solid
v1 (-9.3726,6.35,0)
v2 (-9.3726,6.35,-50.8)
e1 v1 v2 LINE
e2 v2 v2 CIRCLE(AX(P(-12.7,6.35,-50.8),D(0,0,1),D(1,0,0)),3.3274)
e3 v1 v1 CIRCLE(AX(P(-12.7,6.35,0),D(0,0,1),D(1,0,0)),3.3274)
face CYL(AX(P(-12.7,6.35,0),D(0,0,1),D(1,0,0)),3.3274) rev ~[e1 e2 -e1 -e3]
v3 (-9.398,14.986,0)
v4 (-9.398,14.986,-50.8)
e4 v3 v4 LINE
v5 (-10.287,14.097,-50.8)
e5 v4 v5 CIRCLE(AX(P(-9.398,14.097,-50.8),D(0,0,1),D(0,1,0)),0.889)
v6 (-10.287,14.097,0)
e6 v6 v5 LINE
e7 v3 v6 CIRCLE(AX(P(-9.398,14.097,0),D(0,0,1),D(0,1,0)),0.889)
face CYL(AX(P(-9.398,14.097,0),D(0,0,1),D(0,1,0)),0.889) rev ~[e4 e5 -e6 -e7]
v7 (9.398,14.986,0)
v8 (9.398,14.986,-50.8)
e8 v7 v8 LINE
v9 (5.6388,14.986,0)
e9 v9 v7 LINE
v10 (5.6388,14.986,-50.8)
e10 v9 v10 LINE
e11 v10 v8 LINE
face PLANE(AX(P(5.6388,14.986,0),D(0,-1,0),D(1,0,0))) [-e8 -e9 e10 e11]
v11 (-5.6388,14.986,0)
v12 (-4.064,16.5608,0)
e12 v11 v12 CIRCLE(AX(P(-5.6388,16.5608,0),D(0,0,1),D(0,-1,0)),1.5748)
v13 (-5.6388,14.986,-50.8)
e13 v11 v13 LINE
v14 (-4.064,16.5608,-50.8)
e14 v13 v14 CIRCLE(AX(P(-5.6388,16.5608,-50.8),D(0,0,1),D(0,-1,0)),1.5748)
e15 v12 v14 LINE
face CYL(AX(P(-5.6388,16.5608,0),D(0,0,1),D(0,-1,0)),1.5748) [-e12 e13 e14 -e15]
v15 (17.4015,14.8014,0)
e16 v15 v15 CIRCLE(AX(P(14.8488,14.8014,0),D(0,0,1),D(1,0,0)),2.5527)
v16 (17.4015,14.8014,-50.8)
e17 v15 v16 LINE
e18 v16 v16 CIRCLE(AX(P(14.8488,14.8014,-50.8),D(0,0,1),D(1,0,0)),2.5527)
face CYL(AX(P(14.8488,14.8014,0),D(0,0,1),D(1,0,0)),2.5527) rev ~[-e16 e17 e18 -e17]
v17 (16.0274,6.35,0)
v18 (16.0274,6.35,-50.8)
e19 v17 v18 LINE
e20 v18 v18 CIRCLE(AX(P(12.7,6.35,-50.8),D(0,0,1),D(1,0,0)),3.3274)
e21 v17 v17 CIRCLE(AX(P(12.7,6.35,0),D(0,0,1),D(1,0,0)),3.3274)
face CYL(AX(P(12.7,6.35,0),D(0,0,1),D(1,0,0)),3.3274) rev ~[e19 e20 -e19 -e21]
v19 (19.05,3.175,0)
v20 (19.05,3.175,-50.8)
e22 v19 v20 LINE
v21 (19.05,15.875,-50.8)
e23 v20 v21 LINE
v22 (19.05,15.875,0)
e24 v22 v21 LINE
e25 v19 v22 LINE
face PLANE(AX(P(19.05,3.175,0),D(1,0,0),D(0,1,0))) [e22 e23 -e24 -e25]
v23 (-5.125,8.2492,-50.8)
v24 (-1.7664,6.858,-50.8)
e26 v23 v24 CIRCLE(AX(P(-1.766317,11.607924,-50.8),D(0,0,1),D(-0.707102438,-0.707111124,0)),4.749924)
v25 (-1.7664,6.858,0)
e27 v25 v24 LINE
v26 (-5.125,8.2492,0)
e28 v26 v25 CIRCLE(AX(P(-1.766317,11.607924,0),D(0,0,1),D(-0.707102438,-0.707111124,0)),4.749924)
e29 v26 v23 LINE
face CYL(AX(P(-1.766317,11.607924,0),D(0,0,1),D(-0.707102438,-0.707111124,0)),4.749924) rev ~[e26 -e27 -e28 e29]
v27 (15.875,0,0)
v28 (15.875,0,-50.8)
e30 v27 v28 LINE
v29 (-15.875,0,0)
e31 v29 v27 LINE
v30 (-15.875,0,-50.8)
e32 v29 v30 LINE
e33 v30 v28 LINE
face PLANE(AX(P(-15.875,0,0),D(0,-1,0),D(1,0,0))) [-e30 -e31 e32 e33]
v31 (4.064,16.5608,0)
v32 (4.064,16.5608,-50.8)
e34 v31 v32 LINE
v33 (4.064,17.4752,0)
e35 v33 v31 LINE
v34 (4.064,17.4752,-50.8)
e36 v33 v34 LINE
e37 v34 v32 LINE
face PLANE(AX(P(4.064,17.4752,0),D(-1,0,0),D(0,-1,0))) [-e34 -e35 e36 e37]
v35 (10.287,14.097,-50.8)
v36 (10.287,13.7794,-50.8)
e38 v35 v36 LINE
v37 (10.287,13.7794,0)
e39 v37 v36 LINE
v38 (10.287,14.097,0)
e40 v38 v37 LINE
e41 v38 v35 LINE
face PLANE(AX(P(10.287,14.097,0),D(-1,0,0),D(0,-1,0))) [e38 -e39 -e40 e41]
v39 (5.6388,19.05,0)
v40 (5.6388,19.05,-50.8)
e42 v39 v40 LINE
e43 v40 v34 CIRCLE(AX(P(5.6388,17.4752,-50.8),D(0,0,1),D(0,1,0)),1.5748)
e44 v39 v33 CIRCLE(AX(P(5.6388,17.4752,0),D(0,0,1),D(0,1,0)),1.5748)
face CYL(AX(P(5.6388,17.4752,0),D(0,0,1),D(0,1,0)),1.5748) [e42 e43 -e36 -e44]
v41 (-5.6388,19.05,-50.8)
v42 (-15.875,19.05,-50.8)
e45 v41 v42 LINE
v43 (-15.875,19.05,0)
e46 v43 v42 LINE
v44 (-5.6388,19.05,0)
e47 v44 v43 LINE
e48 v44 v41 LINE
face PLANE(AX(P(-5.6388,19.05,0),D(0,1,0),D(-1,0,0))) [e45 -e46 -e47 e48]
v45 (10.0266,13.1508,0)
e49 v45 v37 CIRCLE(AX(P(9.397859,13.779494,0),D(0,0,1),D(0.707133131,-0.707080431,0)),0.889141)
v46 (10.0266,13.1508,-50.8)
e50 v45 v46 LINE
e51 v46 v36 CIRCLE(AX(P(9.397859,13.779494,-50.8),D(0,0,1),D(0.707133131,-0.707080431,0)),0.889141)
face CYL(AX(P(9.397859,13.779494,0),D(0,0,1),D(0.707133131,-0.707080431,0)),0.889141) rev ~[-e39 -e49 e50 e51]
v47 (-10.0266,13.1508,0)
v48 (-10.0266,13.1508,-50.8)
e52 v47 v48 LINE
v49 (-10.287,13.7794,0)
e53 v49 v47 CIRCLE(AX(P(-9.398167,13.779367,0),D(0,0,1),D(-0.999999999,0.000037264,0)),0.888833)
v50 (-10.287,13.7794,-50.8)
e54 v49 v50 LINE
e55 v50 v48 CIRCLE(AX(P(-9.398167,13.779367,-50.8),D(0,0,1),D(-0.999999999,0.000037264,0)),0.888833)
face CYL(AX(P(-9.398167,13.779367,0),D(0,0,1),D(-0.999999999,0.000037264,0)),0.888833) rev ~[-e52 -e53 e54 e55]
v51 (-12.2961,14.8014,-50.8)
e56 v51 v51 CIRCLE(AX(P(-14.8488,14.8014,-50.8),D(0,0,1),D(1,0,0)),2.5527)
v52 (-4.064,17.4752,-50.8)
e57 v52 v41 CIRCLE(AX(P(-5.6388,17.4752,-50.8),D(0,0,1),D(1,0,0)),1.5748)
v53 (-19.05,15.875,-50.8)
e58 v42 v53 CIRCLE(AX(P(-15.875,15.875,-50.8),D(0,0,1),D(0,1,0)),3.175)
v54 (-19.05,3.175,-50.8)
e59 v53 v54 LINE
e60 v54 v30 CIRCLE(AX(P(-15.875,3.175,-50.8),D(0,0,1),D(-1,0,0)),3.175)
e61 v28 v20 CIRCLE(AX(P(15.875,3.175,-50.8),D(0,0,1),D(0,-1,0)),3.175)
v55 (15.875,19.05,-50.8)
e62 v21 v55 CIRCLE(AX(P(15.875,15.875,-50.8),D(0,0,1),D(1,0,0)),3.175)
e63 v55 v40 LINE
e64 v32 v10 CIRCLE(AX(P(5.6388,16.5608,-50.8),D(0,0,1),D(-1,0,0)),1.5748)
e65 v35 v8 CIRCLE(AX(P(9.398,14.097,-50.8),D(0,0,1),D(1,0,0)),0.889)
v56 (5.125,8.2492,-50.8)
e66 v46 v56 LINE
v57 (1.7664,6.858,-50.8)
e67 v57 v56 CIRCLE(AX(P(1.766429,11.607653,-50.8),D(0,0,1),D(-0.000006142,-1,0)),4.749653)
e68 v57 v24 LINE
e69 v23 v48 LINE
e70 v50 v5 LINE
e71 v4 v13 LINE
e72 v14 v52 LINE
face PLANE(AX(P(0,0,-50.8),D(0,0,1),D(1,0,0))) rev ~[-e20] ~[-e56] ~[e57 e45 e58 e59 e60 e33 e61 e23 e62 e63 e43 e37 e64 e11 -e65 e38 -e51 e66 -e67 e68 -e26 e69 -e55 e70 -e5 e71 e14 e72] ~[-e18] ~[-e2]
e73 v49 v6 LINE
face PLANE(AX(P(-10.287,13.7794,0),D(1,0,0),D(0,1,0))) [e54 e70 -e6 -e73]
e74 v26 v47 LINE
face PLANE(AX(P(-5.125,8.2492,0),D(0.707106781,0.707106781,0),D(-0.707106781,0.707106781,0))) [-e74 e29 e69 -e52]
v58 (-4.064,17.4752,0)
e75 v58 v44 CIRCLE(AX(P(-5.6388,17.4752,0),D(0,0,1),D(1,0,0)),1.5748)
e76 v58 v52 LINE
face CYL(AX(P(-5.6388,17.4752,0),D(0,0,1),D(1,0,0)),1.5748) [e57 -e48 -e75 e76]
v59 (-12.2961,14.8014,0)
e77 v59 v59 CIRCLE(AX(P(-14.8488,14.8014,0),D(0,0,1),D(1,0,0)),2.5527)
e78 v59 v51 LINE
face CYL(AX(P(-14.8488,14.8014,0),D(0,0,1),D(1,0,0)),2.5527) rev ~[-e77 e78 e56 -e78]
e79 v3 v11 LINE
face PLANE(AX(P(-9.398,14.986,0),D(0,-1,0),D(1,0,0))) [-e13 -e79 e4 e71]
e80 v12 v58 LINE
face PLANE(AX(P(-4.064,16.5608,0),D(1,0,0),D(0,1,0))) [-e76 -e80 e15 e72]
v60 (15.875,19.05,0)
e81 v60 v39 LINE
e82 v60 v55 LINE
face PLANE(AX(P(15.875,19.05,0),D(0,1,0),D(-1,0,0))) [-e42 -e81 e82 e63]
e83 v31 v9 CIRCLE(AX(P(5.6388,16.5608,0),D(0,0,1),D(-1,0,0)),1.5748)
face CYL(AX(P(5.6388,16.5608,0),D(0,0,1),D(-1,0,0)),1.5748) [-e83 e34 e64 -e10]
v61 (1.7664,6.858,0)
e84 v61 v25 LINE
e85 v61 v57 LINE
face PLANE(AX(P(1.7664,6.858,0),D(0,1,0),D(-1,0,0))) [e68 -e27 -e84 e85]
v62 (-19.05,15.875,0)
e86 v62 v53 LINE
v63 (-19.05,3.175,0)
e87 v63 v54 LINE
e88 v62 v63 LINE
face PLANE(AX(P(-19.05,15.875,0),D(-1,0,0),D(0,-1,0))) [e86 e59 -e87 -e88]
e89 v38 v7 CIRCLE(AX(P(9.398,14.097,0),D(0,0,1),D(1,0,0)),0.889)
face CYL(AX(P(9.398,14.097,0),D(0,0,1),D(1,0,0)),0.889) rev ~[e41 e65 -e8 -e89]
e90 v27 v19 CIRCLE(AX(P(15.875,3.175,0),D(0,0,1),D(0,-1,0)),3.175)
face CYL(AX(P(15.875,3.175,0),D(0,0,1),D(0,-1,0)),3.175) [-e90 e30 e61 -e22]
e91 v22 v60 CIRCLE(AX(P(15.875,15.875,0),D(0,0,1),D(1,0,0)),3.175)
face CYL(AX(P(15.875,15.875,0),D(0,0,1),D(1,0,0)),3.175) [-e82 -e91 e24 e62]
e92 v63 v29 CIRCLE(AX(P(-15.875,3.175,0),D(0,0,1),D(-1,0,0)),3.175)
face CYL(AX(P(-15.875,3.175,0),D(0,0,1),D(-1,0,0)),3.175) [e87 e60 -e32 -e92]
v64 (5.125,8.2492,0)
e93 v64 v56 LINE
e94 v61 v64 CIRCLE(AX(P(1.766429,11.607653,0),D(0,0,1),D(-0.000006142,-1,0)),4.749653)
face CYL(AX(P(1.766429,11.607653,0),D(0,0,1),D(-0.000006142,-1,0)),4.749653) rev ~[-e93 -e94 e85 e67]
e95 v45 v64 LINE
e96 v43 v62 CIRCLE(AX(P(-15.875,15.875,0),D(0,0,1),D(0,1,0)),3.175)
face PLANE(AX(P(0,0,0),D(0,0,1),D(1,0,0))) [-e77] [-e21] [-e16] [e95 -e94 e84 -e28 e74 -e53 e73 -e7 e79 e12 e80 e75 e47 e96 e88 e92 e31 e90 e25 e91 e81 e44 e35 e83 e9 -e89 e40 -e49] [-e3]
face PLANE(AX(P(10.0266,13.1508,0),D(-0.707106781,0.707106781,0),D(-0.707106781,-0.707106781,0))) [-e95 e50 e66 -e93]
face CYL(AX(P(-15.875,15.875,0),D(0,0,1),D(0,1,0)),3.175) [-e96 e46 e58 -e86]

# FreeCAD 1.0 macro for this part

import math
import FreeCAD as App
import Part
import Sketcher

V = App.Vector
Q = App.Units.Quantity

doc = App.newDocument("Part")
params = doc.addObject("Spreadsheet::Sheet", "Params")
for row, (alias, value) in enumerate([
    ("sketch1_diameter", "0.262 in"),
    ("sketch1_diameter2", "0.201 in"),
    ("sketch1_height", "0.5 in"),
    ("sketch1_radius", "0.125 in"),
    ("sketch1_radius2", "0.062 in"),
    ("pad1_length", "2 in"),
], start=1):
    params.set(f"A{row}", alias)
    params.set(f"B{row}", "=" + value)
    params.setAlias(f"B{row}", alias)

body = doc.addObject("PartDesign::Body", "Body")

# Sketch on XY plane
sketch1 = body.newObject("Sketcher::SketchObject", "Sketch")
sketch1.AttachmentSupport = (doc.getObject("XY_Plane"), [""])
sketch1.MapMode = "FlatFace"
sketch1.addGeometry([
    Part.LineSegment(V(-19.05, 15.875, 0), V(-19.05, 3.175, 0)),  # 0
    Part.ArcOfCircle(Part.Circle(V(-15.875, 3.175, 0), V(0, 0, 1), 3.175), math.radians(180), math.radians(270)),  # 1
    Part.LineSegment(V(-15.875, 0, 0), V(15.875, 0, 0)),  # 2
    Part.ArcOfCircle(Part.Circle(V(15.875, 3.175, 0), V(0, 0, 1), 3.175), math.radians(-90), math.radians(0)),  # 3
    Part.LineSegment(V(19.05, 3.175, 0), V(19.05, 15.875, 0)),  # 4
    Part.ArcOfCircle(Part.Circle(V(15.875, 15.875, 0), V(0, 0, 1), 3.175), math.radians(0), math.radians(90)),  # 5
    Part.LineSegment(V(15.875, 19.05, 0), V(5.6388, 19.05, 0)),  # 6
    Part.ArcOfCircle(Part.Circle(V(5.6388, 17.4752, 0), V(0, 0, 1), 1.5748), math.radians(90), math.radians(180)),  # 7
    Part.LineSegment(V(4.064, 17.4752, 0), V(4.064, 16.5608, 0)),  # 8
    Part.ArcOfCircle(Part.Circle(V(5.6388, 16.5608, 0), V(0, 0, 1), 1.5748), math.radians(180), math.radians(270)),  # 9
    Part.LineSegment(V(5.6388, 14.986, 0), V(9.398, 14.986, 0)),  # 10
    Part.ArcOfCircle(Part.Circle(V(9.398, 14.097, 0), V(0, 0, 1), 0.889), math.radians(0), math.radians(90)),  # 11
    Part.LineSegment(V(10.287, 14.097, 0), V(10.287, 13.7794, 0)),  # 12
    Part.ArcOfCircle(Part.Circle(V(9.398, 13.7794, 0), V(0, 0, 1), 0.888975), math.radians(-45), math.radians(0)),  # 13
    Part.LineSegment(V(10.0266, 13.1508, 0), V(5.125, 8.2492, 0)),  # 14
    Part.ArcOfCircle(Part.Circle(V(1.7664, 11.6078, 0), V(0, 0, 1), 4.7498), math.radians(-90), math.radians(-45)),  # 15
    Part.LineSegment(V(1.7664, 6.858, 0), V(-1.7664, 6.858, 0)),  # 16
    Part.ArcOfCircle(Part.Circle(V(-1.7664, 11.6078, 0), V(0, 0, 1), 4.749778), math.radians(-135), math.radians(-90)),  # 17
    Part.LineSegment(V(-5.125, 8.2492, 0), V(-10.0266, 13.1508, 0)),  # 18
    Part.ArcOfCircle(Part.Circle(V(-9.398, 13.7794, 0), V(0, 0, 1), 0.889), math.radians(180), math.radians(225)),  # 19
    Part.LineSegment(V(-10.287, 13.7794, 0), V(-10.287, 14.097, 0)),  # 20
    Part.ArcOfCircle(Part.Circle(V(-9.398, 14.097, 0), V(0, 0, 1), 0.889), math.radians(90), math.radians(180)),  # 21
    Part.LineSegment(V(-9.398, 14.986, 0), V(-5.6388, 14.986, 0)),  # 22
    Part.ArcOfCircle(Part.Circle(V(-5.6388, 16.5608, 0), V(0, 0, 1), 1.5748), math.radians(-90), math.radians(0)),  # 23
    Part.LineSegment(V(-4.064, 16.5608, 0), V(-4.064, 17.4752, 0)),  # 24
    Part.ArcOfCircle(Part.Circle(V(-5.6388, 17.4752, 0), V(0, 0, 1), 1.5748), math.radians(0), math.radians(90)),  # 25
    Part.LineSegment(V(-5.6388, 19.05, 0), V(-15.875, 19.05, 0)),  # 26
    Part.ArcOfCircle(Part.Circle(V(-15.875, 15.875, 0), V(0, 0, 1), 3.175), math.radians(90), math.radians(180)),  # 27
    Part.Circle(V(-12.7, 6.35, 0), V(0, 0, 1), 3.3274),  # 28
    Part.Circle(V(12.7, 6.35, 0), V(0, 0, 1), 3.3274),  # 29
    Part.Circle(V(-14.8488, 14.8014, 0), V(0, 0, 1), 2.5527),  # 30
    Part.Circle(V(14.8488, 14.8014, 0), V(0, 0, 1), 2.5527),  # 31
], False)
sketch1.addConstraint([
    Sketcher.Constraint("Tangent", 0, 2, 1, 1),
    Sketcher.Constraint("Tangent", 1, 2, 2, 1),
    Sketcher.Constraint("Tangent", 2, 2, 3, 1),
    Sketcher.Constraint("Tangent", 3, 2, 4, 1),
    Sketcher.Constraint("Tangent", 4, 2, 5, 1),
    Sketcher.Constraint("Tangent", 5, 2, 6, 1),
    Sketcher.Constraint("Tangent", 6, 2, 7, 1),
    Sketcher.Constraint("Tangent", 7, 2, 8, 1),
    Sketcher.Constraint("Tangent", 8, 2, 9, 1),
    Sketcher.Constraint("Tangent", 9, 2, 10, 1),
    Sketcher.Constraint("Tangent", 10, 2, 11, 2),
    Sketcher.Constraint("Tangent", 11, 1, 12, 1),
    Sketcher.Constraint("Tangent", 12, 2, 13, 2),
    Sketcher.Constraint("Tangent", 13, 1, 14, 1),
    Sketcher.Constraint("Tangent", 14, 2, 15, 2),
    Sketcher.Constraint("Tangent", 15, 1, 16, 1),
    Sketcher.Constraint("Tangent", 16, 2, 17, 2),
    Sketcher.Constraint("Tangent", 17, 1, 18, 1),
    Sketcher.Constraint("Tangent", 18, 2, 19, 2),
    Sketcher.Constraint("Tangent", 19, 1, 20, 1),
    Sketcher.Constraint("Tangent", 20, 2, 21, 2),
    Sketcher.Constraint("Tangent", 21, 1, 22, 1),
    Sketcher.Constraint("Tangent", 22, 2, 23, 1),
    Sketcher.Constraint("Tangent", 23, 2, 24, 1),
    Sketcher.Constraint("Tangent", 24, 2, 25, 1),
    Sketcher.Constraint("Tangent", 25, 2, 26, 1),
    Sketcher.Constraint("Tangent", 26, 2, 27, 1),
    Sketcher.Constraint("Tangent", 27, 2, 0, 1),
    Sketcher.Constraint("Vertical", 0),
    Sketcher.Constraint("Horizontal", 2),
    Sketcher.Constraint("Vertical", 4),
    Sketcher.Constraint("Horizontal", 6),
    Sketcher.Constraint("Vertical", 8),
    Sketcher.Constraint("Horizontal", 10),
    Sketcher.Constraint("Vertical", 12),
    Sketcher.Constraint("Horizontal", 16),
    Sketcher.Constraint("Vertical", 20),
    Sketcher.Constraint("Horizontal", 22),
    Sketcher.Constraint("Vertical", 24),
    Sketcher.Constraint("Horizontal", 26),
    Sketcher.Constraint("Equal", 1, 3),
    Sketcher.Constraint("Equal", 3, 5),
    Sketcher.Constraint("Equal", 7, 9),
    Sketcher.Constraint("Equal", 11, 13),
    Sketcher.Constraint("Equal", 15, 17),
    Sketcher.Constraint("Equal", 13, 19),
    Sketcher.Constraint("Equal", 19, 21),
    Sketcher.Constraint("Equal", 9, 23),
    Sketcher.Constraint("Equal", 23, 25),
    Sketcher.Constraint("Equal", 5, 27),
    Sketcher.Constraint("Equal", 28, 29),
    Sketcher.Constraint("Equal", 30, 31),
    Sketcher.Constraint("Symmetric", 1, 2, 2, 2, -1, 1),
    Sketcher.Constraint("Symmetric", 13, 3, 19, 3, -2),
    Sketcher.Constraint("Symmetric", 9, 3, 23, 3, -2),
    Sketcher.Constraint("Symmetric", 28, 3, 29, 3, -2),
    Sketcher.Constraint("Symmetric", 30, 3, 31, 3, -2),
    Sketcher.Constraint("Perpendicular", 14, 18),
    Sketcher.Constraint("Horizontal", 7, 3, 25, 3),
    Sketcher.Constraint("Horizontal", 14, 2, 17, 1),
    Sketcher.Constraint("Diameter", 28, Q("0.262 in")),
    Sketcher.Constraint("Diameter", 30, Q("0.201 in")),
    Sketcher.Constraint("DistanceY", 0, 2, 0, 1, Q("0.5 in")),
    Sketcher.Constraint("Radius", 1, Q("0.125 in")),
    Sketcher.Constraint("Radius", 7, Q("0.062 in")),
    Sketcher.Constraint("Radius", 11, Q("0.035 in")),
    Sketcher.Constraint("Radius", 15, Q("0.187 in")),
    Sketcher.Constraint("DistanceX", 2, 1, 2, 2, Q("1.25 in")),
    Sketcher.Constraint("DistanceX", 28, 3, -1, 1, Q("0.5 in")),
    Sketcher.Constraint("DistanceX", 6, 2, 6, 1, Q("0.403 in")),
    Sketcher.Constraint("DistanceX", 10, 1, 10, 2, Q("0.148 in")),
    Sketcher.Constraint("DistanceY", 8, 2, 8, 1, Q("0.036 in")),
    Sketcher.Constraint("DistanceY", -1, 1, 28, 3, Q("0.25 in")),
    Sketcher.Constraint("DistanceY", -1, 1, 15, 1, Q("0.27 in")),
    Sketcher.Constraint("DistanceY", 12, 2, 12, 1, Q("0.0125 in")),
    Sketcher.Constraint("DistanceX", 30, 3, -1, 1, Q("0.5846 in")),
    Sketcher.Constraint("DistanceY", -1, 1, 30, 3, 14.8014),
])
sketch1.setExpression("Constraints[60]", "Params.sketch1_diameter")
sketch1.setExpression("Constraints[61]", "Params.sketch1_diameter2")
sketch1.setExpression("Constraints[62]", "Params.sketch1_height")
sketch1.setExpression("Constraints[63]", "Params.sketch1_radius")
sketch1.setExpression("Constraints[64]", "Params.sketch1_radius2")
pad1 = body.newObject("PartDesign::Pad", "Pad")
pad1.Profile = sketch1
pad1.setExpression("Length", "Params.pad1_length")
pad1.Reversed = True

doc.recompute()
